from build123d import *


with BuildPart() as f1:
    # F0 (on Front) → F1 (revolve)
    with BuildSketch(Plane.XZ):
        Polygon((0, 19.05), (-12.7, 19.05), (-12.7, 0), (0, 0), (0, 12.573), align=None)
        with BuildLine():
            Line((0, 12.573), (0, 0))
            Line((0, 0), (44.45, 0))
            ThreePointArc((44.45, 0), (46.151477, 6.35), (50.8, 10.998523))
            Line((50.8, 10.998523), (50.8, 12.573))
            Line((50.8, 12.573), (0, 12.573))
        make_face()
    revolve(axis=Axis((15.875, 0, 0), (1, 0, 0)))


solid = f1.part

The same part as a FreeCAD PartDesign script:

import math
import FreeCAD as App
import Part
import Sketcher

V = App.Vector
Q = App.Units.Quantity

doc = App.newDocument("Part")
params = doc.addObject("Spreadsheet::Sheet", "Params")
for row, (alias, value) in enumerate([
    ("sketch1_radius", "0.5 in"),
    ("sketch1_width", "2 in"),
    ("sketch1_width2", "0.5 in"),
    ("sketch1_width3", "2.25 in"),
    ("sketch1_height", "0.75 in"),
    ("revolution_angle", "360 deg"),
], start=1):
    params.set(f"A{row}", alias)
    params.set(f"B{row}", "=" + value)
    params.setAlias(f"B{row}", alias)

body = doc.addObject("PartDesign::Body", "Body")

# Sketch on XZ plane
sketch1 = body.newObject("Sketcher::SketchObject", "Sketch")
sketch1.AttachmentSupport = (doc.getObject("XZ_Plane"), [""])
sketch1.MapMode = "FlatFace"
sketch1.addGeometry([
    Part.LineSegment(V(0, 19.1, 0), V(-12.7, 19.1, 0)),  # 0
    Part.LineSegment(V(-12.7, 19.1, 0), V(-12.7, 0, 0)),  # 1
    Part.LineSegment(V(-12.7, 0, 0), V(44.5, 0, 0)),  # 2
    Part.ArcOfCircle(Part.Circle(V(57.1, 0, 0), V(0, 0, 1), 12.7), math.radians(120), math.radians(180)),  # 3
    Part.LineSegment(V(50.8, 11, 0), V(50.8, 12.6, 0)),  # 4
    Part.LineSegment(V(50.8, 12.6, 0), V(0, 12.6, 0)),  # 5
    Part.LineSegment(V(0, 12.6, 0), V(0, 19.1, 0)),  # 6
], False)
sketch1.addConstraint([
    Sketcher.Constraint("Coincident", 0, 2, 1, 1),
    Sketcher.Constraint("Coincident", 1, 2, 2, 1),
    Sketcher.Constraint("Coincident", 2, 2, 3, 2),
    Sketcher.Constraint("Coincident", 3, 1, 4, 1),
    Sketcher.Constraint("Coincident", 4, 2, 5, 1),
    Sketcher.Constraint("Coincident", 5, 2, 6, 1),
    Sketcher.Constraint("Coincident", 6, 2, 0, 1),
    Sketcher.Constraint("Horizontal", 0),
    Sketcher.Constraint("Vertical", 1),
    Sketcher.Constraint("Horizontal", 2),
    Sketcher.Constraint("Vertical", 4),
    Sketcher.Constraint("Horizontal", 5),
    Sketcher.Constraint("Vertical", 6),
    Sketcher.Constraint("PointOnObject", 3, 3, -1),
    Sketcher.Constraint("PointOnObject", 1, 2, -1),
    Sketcher.Constraint("PointOnObject", 5, 2, -2),
    Sketcher.Constraint("Radius", 3, Q("0.5 in")),
    Sketcher.Constraint("DistanceX", 5, 2, 5, 1, Q("2 in")),
    Sketcher.Constraint("DistanceX", 0, 2, 0, 1, Q("0.5 in")),
    Sketcher.Constraint("DistanceX", 2, 1, 2, 2, Q("2.25 in")),
    Sketcher.Constraint("DistanceY", 1, 2, 1, 1, Q("0.75 in")),
    Sketcher.Constraint("DistanceY", 6, 1, 6, 2, Q("0.255 in")),
])
sketch1.setExpression("Constraints[16]", "Params.sketch1_radius")
sketch1.setExpression("Constraints[17]", "Params.sketch1_width")
sketch1.setExpression("Constraints[18]", "Params.sketch1_width2")
sketch1.setExpression("Constraints[19]", "Params.sketch1_width3")
sketch1.setExpression("Constraints[20]", "Params.sketch1_height")
revolution = body.newObject("PartDesign::Revolution", "Revolution")
revolution.Profile = sketch1
revolution.ReferenceAxis = (sketch1, ["H_Axis"])
revolution.setExpression("Angle", "Params.revolution_angle")

doc.recompute()
